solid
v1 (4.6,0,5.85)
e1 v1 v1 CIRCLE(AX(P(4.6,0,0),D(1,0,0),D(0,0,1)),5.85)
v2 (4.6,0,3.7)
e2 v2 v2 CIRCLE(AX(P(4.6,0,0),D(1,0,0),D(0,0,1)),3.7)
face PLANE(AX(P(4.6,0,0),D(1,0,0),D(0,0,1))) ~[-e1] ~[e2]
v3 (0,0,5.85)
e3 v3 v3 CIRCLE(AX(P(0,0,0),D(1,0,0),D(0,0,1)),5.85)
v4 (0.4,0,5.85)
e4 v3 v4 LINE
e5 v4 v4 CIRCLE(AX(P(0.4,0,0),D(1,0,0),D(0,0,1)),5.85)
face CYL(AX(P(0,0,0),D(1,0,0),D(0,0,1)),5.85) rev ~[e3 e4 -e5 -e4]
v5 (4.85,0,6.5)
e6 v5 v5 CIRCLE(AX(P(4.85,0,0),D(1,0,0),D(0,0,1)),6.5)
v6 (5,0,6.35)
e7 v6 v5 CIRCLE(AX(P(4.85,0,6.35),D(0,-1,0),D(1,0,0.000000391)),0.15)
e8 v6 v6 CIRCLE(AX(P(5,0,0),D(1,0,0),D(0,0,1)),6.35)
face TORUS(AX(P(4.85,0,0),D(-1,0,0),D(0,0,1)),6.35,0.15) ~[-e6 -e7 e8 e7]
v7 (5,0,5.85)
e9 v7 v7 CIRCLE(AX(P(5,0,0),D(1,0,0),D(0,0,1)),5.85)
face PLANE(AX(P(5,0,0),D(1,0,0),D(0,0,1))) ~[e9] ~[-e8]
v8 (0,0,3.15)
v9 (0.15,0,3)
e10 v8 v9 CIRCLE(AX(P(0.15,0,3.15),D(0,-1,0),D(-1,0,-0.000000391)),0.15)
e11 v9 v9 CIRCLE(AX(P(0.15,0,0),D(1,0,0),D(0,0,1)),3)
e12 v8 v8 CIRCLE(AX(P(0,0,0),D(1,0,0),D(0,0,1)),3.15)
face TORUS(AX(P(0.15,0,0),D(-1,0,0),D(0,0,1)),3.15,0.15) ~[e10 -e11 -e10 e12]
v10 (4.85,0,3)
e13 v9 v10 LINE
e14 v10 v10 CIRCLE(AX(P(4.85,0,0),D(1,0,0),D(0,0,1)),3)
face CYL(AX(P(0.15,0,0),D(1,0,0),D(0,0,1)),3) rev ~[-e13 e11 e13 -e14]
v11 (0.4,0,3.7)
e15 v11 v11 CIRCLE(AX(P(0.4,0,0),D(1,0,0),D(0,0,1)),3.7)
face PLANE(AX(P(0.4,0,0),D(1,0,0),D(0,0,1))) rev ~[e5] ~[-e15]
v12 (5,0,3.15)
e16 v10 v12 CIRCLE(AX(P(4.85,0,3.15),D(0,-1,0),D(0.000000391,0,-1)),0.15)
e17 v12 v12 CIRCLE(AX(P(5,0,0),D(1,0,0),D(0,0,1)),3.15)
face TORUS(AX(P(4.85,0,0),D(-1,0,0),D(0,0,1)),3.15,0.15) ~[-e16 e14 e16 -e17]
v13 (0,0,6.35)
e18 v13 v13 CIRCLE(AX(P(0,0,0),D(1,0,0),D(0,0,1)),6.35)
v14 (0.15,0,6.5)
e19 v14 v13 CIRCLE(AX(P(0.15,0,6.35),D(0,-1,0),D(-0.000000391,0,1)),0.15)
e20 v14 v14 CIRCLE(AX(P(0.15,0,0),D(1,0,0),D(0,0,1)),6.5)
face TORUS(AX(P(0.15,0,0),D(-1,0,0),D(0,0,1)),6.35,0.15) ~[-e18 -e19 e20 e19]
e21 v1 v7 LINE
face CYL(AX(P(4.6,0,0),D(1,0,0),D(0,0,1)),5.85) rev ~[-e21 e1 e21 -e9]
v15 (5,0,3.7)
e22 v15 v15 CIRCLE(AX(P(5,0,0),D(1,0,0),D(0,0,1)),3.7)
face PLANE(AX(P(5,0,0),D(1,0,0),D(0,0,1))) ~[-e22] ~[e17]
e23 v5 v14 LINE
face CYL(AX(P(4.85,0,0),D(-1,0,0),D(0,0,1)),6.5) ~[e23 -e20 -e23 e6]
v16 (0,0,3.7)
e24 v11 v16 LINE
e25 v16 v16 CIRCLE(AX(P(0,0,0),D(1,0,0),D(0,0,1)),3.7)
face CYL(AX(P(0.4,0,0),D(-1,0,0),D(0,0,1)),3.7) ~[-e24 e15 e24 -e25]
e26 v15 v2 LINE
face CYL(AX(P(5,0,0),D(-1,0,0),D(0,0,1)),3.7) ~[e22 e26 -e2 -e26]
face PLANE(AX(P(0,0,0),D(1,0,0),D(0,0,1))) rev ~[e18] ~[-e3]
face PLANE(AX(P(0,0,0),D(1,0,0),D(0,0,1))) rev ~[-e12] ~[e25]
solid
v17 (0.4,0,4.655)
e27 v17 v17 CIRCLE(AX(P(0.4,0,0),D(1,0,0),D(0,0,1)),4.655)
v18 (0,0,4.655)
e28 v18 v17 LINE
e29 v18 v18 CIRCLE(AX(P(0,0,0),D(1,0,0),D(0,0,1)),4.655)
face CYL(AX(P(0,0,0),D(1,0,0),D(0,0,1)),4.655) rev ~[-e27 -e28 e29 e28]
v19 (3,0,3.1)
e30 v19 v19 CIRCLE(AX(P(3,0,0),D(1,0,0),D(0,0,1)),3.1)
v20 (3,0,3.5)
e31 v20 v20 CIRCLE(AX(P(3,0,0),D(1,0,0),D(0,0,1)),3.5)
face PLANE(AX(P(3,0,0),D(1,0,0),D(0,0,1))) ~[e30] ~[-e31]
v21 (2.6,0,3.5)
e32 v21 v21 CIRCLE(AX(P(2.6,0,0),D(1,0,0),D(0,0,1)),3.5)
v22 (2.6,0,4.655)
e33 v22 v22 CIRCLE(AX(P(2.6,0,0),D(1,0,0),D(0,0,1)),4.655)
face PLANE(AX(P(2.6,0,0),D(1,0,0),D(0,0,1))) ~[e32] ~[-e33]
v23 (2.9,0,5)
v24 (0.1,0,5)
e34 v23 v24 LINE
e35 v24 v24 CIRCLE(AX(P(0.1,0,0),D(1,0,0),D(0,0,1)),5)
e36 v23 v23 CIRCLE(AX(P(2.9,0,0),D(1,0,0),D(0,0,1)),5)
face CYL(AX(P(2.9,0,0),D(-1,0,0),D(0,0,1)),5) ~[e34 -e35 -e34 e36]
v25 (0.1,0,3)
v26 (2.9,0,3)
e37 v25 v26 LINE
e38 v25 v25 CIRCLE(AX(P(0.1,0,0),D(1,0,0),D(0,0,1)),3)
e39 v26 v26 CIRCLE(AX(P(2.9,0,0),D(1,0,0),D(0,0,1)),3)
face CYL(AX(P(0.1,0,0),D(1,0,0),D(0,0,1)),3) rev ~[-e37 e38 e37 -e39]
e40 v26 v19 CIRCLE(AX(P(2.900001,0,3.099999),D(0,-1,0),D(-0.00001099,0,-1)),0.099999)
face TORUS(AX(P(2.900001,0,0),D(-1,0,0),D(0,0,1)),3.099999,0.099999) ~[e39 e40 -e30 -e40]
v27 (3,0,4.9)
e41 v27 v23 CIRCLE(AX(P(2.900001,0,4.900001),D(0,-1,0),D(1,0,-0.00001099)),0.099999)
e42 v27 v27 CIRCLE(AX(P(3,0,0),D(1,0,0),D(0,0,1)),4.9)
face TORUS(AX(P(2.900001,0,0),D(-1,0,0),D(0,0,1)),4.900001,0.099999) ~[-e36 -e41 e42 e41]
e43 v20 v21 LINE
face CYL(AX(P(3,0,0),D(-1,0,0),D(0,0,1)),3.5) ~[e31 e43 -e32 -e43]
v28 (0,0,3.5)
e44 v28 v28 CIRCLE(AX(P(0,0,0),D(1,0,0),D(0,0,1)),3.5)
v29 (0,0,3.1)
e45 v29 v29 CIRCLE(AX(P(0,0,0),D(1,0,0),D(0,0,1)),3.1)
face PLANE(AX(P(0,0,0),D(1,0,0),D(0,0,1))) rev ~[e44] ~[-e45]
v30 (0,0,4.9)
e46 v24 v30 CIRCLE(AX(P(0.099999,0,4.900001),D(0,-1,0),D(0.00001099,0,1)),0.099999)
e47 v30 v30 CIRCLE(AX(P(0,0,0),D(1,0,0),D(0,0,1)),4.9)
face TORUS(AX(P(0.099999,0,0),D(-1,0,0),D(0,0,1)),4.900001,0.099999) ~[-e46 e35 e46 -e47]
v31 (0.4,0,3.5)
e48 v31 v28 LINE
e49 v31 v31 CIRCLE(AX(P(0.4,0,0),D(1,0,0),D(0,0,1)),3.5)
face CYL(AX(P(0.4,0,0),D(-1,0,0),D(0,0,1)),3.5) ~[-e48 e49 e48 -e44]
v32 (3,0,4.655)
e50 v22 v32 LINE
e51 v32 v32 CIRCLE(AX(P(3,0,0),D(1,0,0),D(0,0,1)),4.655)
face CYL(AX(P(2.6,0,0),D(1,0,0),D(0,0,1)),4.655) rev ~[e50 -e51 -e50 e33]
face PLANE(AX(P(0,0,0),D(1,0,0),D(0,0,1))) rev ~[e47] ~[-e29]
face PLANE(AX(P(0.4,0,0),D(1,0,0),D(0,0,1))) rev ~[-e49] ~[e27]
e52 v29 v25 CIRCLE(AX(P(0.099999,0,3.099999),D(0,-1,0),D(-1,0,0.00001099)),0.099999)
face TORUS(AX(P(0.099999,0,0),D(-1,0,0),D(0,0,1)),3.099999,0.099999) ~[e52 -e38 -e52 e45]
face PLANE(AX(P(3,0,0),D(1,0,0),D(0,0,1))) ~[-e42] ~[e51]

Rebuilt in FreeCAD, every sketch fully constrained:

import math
import FreeCAD as App
import Part
import Sketcher
from FreeCAD import Vector
Q = App.Units.Quantity

doc = App.newDocument("Part")
params = doc.addObject("Spreadsheet::Sheet", "Params")
for row, (alias, value) in enumerate([
    ("sketch1_radius", "0.15 mm"),
    ("sketch1_width", "4.7 mm"),
    ("sketch1_width2", "0.4 mm"),
    ("sketch1_height", "0.5 mm"),
    ("sketch1_height2", "2.15 mm"),
    ("revolution_angle", "360 deg"),
    ("sketch2_radius", "0.099999 mm"),
    ("sketch2_width", "2.8 mm"),
    ("sketch2_width2", "0.4 mm"),
    ("revolution2_angle", "360 deg"),
], start=1):
    params.set(f"A{row}", alias)
    params.set(f"B{row}", "=" + value)
    params.setAlias(f"B{row}", alias)

body = doc.addObject("PartDesign::Body", "Body")

# Sketch on XZ plane
sketch1 = doc.addObject("Sketcher::SketchObject", "Sketch")
body.addObject(sketch1)
sketch1.AttachmentSupport = (doc.XZ_Plane, [""])
sketch1.MapMode = "FlatFace"
sketch1.addGeometry([
    Part.LineSegment(Vector(4.85, 6.5, 0), Vector(0.15, 6.5, 0)),  # 0
    Part.ArcOfCircle(Part.Circle(Vector(0.15, 6.35, 0), Vector(0, 0, 1), 0.15), math.radians(90), math.radians(180)),  # 1
    Part.LineSegment(Vector(0, 6.35, 0), Vector(0, 5.85, 0)),  # 2
    Part.LineSegment(Vector(0, 5.85, 0), Vector(0.4, 5.85, 0)),  # 3
    Part.LineSegment(Vector(0.4, 5.85, 0), Vector(0.4, 3.7, 0)),  # 4
    Part.LineSegment(Vector(0.4, 3.7, 0), Vector(0, 3.7, 0)),  # 5
    Part.LineSegment(Vector(0, 3.7, 0), Vector(0, 3.15, 0)),  # 6
    Part.ArcOfCircle(Part.Circle(Vector(0.15, 3.15, 0), Vector(0, 0, 1), 0.15), math.radians(-180), math.radians(-90)),  # 7
    Part.LineSegment(Vector(0.15, 3, 0), Vector(4.85, 3, 0)),  # 8
    Part.ArcOfCircle(Part.Circle(Vector(4.85, 3.15, 0), Vector(0, 0, 1), 0.15), math.radians(-90), math.radians(0)),  # 9
    Part.LineSegment(Vector(5, 3.15, 0), Vector(5, 3.7, 0)),  # 10
    Part.LineSegment(Vector(5, 3.7, 0), Vector(4.6, 3.7, 0)),  # 11
    Part.LineSegment(Vector(4.6, 3.7, 0), Vector(4.6, 5.85, 0)),  # 12
    Part.LineSegment(Vector(4.6, 5.85, 0), Vector(5, 5.85, 0)),  # 13
    Part.LineSegment(Vector(5, 5.85, 0), Vector(5, 6.35, 0)),  # 14
    Part.ArcOfCircle(Part.Circle(Vector(4.85, 6.35, 0), Vector(0, 0, 1), 0.15), math.radians(0), math.radians(90)),  # 15
], False)
sketch1.addConstraint([
    Sketcher.Constraint("Tangent", 0, 2, 1, 1),
    Sketcher.Constraint("Tangent", 1, 2, 2, 1),
    Sketcher.Constraint("Coincident", 2, 2, 3, 1),
    Sketcher.Constraint("Coincident", 3, 2, 4, 1),
    Sketcher.Constraint("Coincident", 4, 2, 5, 1),
    Sketcher.Constraint("Coincident", 5, 2, 6, 1),
    Sketcher.Constraint("Tangent", 6, 2, 7, 1),
    Sketcher.Constraint("Tangent", 7, 2, 8, 1),
    Sketcher.Constraint("Tangent", 8, 2, 9, 1),
    Sketcher.Constraint("Tangent", 9, 2, 10, 1),
    Sketcher.Constraint("Coincident", 10, 2, 11, 1),
    Sketcher.Constraint("Coincident", 11, 2, 12, 1),
    Sketcher.Constraint("Coincident", 12, 2, 13, 1),
    Sketcher.Constraint("Coincident", 13, 2, 14, 1),
    Sketcher.Constraint("Tangent", 14, 2, 15, 1),
    Sketcher.Constraint("Tangent", 15, 2, 0, 1),
    Sketcher.Constraint("Horizontal", 0),
    Sketcher.Constraint("Vertical", 2),
    Sketcher.Constraint("Horizontal", 3),
    Sketcher.Constraint("Vertical", 4),
    Sketcher.Constraint("Horizontal", 5),
    Sketcher.Constraint("Vertical", 6),
    Sketcher.Constraint("Horizontal", 8),
    Sketcher.Constraint("Vertical", 10),
    Sketcher.Constraint("Horizontal", 11),
    Sketcher.Constraint("Vertical", 12),
    Sketcher.Constraint("Horizontal", 13),
    Sketcher.Constraint("Vertical", 14),
    Sketcher.Constraint("Equal", 1, 7),
    Sketcher.Constraint("Equal", 7, 9),
    Sketcher.Constraint("Equal", 9, 15),
    Sketcher.Constraint("PointOnObject", 1, 2, -2),
    Sketcher.Constraint("PointOnObject", 5, 2, -2),
    Sketcher.Constraint("Horizontal", 5, 2, 10, 2),
    Sketcher.Constraint("Horizontal", 3, 2, 12, 2),
    Sketcher.Constraint("Vertical", 9, 3, 15, 3),
    Sketcher.Constraint("Equal", 5, 11),
    Sketcher.Constraint("Radius", 1, Q("0.15 mm")),
    Sketcher.Constraint("DistanceX", 0, 2, 0, 1, Q("4.7 mm")),
    Sketcher.Constraint("DistanceX", 3, 1, 3, 2, Q("0.4 mm")),
    Sketcher.Constraint("DistanceY", 2, 2, 2, 1, Q("0.5 mm")),
    Sketcher.Constraint("DistanceY", -1, 1, 7, 2, Q("3 mm")),
    Sketcher.Constraint("DistanceY", 4, 2, 4, 1, Q("2.15 mm")),
    Sketcher.Constraint("DistanceY", 6, 2, 6, 1, Q("0.55 mm")),
])
sketch1.setExpression("Constraints[37]", "Params.sketch1_radius")
sketch1.setExpression("Constraints[38]", "Params.sketch1_width")
sketch1.setExpression("Constraints[39]", "Params.sketch1_width2")
sketch1.setExpression("Constraints[40]", "Params.sketch1_height")
sketch1.setExpression("Constraints[42]", "Params.sketch1_height2")
revolution = doc.addObject("PartDesign::Revolution", "Revolution")
body.addObject(revolution)
revolution.Profile = sketch1
revolution.ReferenceAxis = (sketch1, ["H_Axis"])
revolution.setExpression("Angle", "Params.revolution_angle")
body2 = doc.addObject("PartDesign::Body", "Body001")

# Sketch on XZ plane
sketch2 = doc.addObject("Sketcher::SketchObject", "Sketch001")
body2.addObject(sketch2)
sketch2.AttachmentSupport = (doc.getObject("XZ_Plane001"), [""])
sketch2.MapMode = "FlatFace"
sketch2.addGeometry([
    Part.LineSegment(Vector(2.9, 5, 0), Vector(0.1, 5, 0)),  # 0
    Part.ArcOfCircle(Part.Circle(Vector(0.1, 4.9, 0), Vector(0, 0, 1), 0.1), math.radians(90), math.radians(180)),  # 1
    Part.LineSegment(Vector(0, 4.9, 0), Vector(0, 4.66, 0)),  # 2
    Part.LineSegment(Vector(0, 4.66, 0), Vector(0.4, 4.66, 0)),  # 3
    Part.LineSegment(Vector(0.4, 4.66, 0), Vector(0.4, 3.5, 0)),  # 4
    Part.LineSegment(Vector(0.4, 3.5, 0), Vector(0, 3.5, 0)),  # 5
    Part.LineSegment(Vector(0, 3.5, 0), Vector(0, 3.1, 0)),  # 6
    Part.ArcOfCircle(Part.Circle(Vector(0.1, 3.1, 0), Vector(0, 0, 1), 0.1), math.radians(180), math.radians(270)),  # 7
    Part.LineSegment(Vector(0.1, 3, 0), Vector(2.9, 3, 0)),  # 8
    Part.ArcOfCircle(Part.Circle(Vector(2.9, 3.1, 0), Vector(0, 0, 1), 0.1), math.radians(-90), math.radians(0)),  # 9
    Part.LineSegment(Vector(3, 3.1, 0), Vector(3, 3.5, 0)),  # 10
    Part.LineSegment(Vector(3, 3.5, 0), Vector(2.6, 3.5, 0)),  # 11
    Part.LineSegment(Vector(2.6, 3.5, 0), Vector(2.6, 4.66, 0)),  # 12
    Part.LineSegment(Vector(2.6, 4.66, 0), Vector(3, 4.66, 0)),  # 13
    Part.LineSegment(Vector(3, 4.66, 0), Vector(3, 4.9, 0)),  # 14
    Part.ArcOfCircle(Part.Circle(Vector(2.9, 4.9, 0), Vector(0, 0, 1), 0.1), math.radians(0), math.radians(90)),  # 15
], False)
sketch2.addConstraint([
    Sketcher.Constraint("Coincident", 0, 2, 1, 1),
    Sketcher.Constraint("Coincident", 1, 2, 2, 1),
    Sketcher.Constraint("Coincident", 2, 2, 3, 1),
    Sketcher.Constraint("Coincident", 3, 2, 4, 1),
    Sketcher.Constraint("Coincident", 4, 2, 5, 1),
    Sketcher.Constraint("Coincident", 5, 2, 6, 1),
    Sketcher.Constraint("Coincident", 6, 2, 7, 1),
    Sketcher.Constraint("Coincident", 7, 2, 8, 1),
    Sketcher.Constraint("Coincident", 8, 2, 9, 1),
    Sketcher.Constraint("Coincident", 9, 2, 10, 1),
    Sketcher.Constraint("Coincident", 10, 2, 11, 1),
    Sketcher.Constraint("Coincident", 11, 2, 12, 1),
    Sketcher.Constraint("Coincident", 12, 2, 13, 1),
    Sketcher.Constraint("Coincident", 13, 2, 14, 1),
    Sketcher.Constraint("Coincident", 14, 2, 15, 1),
    Sketcher.Constraint("Coincident", 15, 2, 0, 1),
    Sketcher.Constraint("Horizontal", 0),
    Sketcher.Constraint("Vertical", 2),
    Sketcher.Constraint("Horizontal", 3),
    Sketcher.Constraint("Vertical", 4),
    Sketcher.Constraint("Horizontal", 5),
    Sketcher.Constraint("Vertical", 6),
    Sketcher.Constraint("Horizontal", 8),
    Sketcher.Constraint("Vertical", 10),
    Sketcher.Constraint("Horizontal", 11),
    Sketcher.Constraint("Vertical", 12),
    Sketcher.Constraint("Horizontal", 13),
    Sketcher.Constraint("Vertical", 14),
    Sketcher.Constraint("Equal", 1, 7),
    Sketcher.Constraint("Equal", 7, 9),
    Sketcher.Constraint("Equal", 9, 15),
    Sketcher.Constraint("PointOnObject", 1, 2, -2),
    Sketcher.Constraint("PointOnObject", 5, 2, -2),
    Sketcher.Constraint("Horizontal", 15, 3, 1, 2),
    Sketcher.Constraint("Horizontal", 9, 3, 6, 2),
    Sketcher.Constraint("Horizontal", 6, 2, 9, 2),
    Sketcher.Constraint("Horizontal", 5, 2, 10, 2),
    Sketcher.Constraint("Horizontal", 3, 2, 12, 2),
    Sketcher.Constraint("Horizontal", 1, 2, 14, 2),
    Sketcher.Constraint("Vertical", 9, 3, 15, 3),
    Sketcher.Constraint("Vertical", 7, 3, 0, 2),
    Sketcher.Constraint("Vertical", 0, 2, 7, 2),
    Sketcher.Constraint("Vertical", 15, 3, 8, 2),
    Sketcher.Constraint("Vertical", 8, 2, 15, 2),
    Sketcher.Constraint("Equal", 5, 11),
    Sketcher.Constraint("Equal", 13, 6),
    Sketcher.Constraint("Radius", 1, Q("0.099999 mm")),
    Sketcher.Constraint("DistanceX", 0, 2, 0, 1, Q("2.8 mm")),
    Sketcher.Constraint("DistanceX", 3, 1, 3, 2, Q("0.4 mm")),
    Sketcher.Constraint("DistanceY", -1, 1, 0, 2, Q("5 mm")),
    Sketcher.Constraint("DistanceY", -1, 1, 7, 2, Q("3 mm")),
    Sketcher.Constraint("DistanceY", 2, 2, 2, 1, Q("0.245 mm")),
])
sketch2.setExpression("Constraints[46]", "Params.sketch2_radius")
sketch2.setExpression("Constraints[47]", "Params.sketch2_width")
sketch2.setExpression("Constraints[48]", "Params.sketch2_width2")
revolution2 = doc.addObject("PartDesign::Revolution", "Revolution001")
body2.addObject(revolution2)
revolution2.Profile = sketch2
revolution2.ReferenceAxis = (sketch2, ["H_Axis"])
revolution2.setExpression("Angle", "Params.revolution2_angle")

doc.recompute()
